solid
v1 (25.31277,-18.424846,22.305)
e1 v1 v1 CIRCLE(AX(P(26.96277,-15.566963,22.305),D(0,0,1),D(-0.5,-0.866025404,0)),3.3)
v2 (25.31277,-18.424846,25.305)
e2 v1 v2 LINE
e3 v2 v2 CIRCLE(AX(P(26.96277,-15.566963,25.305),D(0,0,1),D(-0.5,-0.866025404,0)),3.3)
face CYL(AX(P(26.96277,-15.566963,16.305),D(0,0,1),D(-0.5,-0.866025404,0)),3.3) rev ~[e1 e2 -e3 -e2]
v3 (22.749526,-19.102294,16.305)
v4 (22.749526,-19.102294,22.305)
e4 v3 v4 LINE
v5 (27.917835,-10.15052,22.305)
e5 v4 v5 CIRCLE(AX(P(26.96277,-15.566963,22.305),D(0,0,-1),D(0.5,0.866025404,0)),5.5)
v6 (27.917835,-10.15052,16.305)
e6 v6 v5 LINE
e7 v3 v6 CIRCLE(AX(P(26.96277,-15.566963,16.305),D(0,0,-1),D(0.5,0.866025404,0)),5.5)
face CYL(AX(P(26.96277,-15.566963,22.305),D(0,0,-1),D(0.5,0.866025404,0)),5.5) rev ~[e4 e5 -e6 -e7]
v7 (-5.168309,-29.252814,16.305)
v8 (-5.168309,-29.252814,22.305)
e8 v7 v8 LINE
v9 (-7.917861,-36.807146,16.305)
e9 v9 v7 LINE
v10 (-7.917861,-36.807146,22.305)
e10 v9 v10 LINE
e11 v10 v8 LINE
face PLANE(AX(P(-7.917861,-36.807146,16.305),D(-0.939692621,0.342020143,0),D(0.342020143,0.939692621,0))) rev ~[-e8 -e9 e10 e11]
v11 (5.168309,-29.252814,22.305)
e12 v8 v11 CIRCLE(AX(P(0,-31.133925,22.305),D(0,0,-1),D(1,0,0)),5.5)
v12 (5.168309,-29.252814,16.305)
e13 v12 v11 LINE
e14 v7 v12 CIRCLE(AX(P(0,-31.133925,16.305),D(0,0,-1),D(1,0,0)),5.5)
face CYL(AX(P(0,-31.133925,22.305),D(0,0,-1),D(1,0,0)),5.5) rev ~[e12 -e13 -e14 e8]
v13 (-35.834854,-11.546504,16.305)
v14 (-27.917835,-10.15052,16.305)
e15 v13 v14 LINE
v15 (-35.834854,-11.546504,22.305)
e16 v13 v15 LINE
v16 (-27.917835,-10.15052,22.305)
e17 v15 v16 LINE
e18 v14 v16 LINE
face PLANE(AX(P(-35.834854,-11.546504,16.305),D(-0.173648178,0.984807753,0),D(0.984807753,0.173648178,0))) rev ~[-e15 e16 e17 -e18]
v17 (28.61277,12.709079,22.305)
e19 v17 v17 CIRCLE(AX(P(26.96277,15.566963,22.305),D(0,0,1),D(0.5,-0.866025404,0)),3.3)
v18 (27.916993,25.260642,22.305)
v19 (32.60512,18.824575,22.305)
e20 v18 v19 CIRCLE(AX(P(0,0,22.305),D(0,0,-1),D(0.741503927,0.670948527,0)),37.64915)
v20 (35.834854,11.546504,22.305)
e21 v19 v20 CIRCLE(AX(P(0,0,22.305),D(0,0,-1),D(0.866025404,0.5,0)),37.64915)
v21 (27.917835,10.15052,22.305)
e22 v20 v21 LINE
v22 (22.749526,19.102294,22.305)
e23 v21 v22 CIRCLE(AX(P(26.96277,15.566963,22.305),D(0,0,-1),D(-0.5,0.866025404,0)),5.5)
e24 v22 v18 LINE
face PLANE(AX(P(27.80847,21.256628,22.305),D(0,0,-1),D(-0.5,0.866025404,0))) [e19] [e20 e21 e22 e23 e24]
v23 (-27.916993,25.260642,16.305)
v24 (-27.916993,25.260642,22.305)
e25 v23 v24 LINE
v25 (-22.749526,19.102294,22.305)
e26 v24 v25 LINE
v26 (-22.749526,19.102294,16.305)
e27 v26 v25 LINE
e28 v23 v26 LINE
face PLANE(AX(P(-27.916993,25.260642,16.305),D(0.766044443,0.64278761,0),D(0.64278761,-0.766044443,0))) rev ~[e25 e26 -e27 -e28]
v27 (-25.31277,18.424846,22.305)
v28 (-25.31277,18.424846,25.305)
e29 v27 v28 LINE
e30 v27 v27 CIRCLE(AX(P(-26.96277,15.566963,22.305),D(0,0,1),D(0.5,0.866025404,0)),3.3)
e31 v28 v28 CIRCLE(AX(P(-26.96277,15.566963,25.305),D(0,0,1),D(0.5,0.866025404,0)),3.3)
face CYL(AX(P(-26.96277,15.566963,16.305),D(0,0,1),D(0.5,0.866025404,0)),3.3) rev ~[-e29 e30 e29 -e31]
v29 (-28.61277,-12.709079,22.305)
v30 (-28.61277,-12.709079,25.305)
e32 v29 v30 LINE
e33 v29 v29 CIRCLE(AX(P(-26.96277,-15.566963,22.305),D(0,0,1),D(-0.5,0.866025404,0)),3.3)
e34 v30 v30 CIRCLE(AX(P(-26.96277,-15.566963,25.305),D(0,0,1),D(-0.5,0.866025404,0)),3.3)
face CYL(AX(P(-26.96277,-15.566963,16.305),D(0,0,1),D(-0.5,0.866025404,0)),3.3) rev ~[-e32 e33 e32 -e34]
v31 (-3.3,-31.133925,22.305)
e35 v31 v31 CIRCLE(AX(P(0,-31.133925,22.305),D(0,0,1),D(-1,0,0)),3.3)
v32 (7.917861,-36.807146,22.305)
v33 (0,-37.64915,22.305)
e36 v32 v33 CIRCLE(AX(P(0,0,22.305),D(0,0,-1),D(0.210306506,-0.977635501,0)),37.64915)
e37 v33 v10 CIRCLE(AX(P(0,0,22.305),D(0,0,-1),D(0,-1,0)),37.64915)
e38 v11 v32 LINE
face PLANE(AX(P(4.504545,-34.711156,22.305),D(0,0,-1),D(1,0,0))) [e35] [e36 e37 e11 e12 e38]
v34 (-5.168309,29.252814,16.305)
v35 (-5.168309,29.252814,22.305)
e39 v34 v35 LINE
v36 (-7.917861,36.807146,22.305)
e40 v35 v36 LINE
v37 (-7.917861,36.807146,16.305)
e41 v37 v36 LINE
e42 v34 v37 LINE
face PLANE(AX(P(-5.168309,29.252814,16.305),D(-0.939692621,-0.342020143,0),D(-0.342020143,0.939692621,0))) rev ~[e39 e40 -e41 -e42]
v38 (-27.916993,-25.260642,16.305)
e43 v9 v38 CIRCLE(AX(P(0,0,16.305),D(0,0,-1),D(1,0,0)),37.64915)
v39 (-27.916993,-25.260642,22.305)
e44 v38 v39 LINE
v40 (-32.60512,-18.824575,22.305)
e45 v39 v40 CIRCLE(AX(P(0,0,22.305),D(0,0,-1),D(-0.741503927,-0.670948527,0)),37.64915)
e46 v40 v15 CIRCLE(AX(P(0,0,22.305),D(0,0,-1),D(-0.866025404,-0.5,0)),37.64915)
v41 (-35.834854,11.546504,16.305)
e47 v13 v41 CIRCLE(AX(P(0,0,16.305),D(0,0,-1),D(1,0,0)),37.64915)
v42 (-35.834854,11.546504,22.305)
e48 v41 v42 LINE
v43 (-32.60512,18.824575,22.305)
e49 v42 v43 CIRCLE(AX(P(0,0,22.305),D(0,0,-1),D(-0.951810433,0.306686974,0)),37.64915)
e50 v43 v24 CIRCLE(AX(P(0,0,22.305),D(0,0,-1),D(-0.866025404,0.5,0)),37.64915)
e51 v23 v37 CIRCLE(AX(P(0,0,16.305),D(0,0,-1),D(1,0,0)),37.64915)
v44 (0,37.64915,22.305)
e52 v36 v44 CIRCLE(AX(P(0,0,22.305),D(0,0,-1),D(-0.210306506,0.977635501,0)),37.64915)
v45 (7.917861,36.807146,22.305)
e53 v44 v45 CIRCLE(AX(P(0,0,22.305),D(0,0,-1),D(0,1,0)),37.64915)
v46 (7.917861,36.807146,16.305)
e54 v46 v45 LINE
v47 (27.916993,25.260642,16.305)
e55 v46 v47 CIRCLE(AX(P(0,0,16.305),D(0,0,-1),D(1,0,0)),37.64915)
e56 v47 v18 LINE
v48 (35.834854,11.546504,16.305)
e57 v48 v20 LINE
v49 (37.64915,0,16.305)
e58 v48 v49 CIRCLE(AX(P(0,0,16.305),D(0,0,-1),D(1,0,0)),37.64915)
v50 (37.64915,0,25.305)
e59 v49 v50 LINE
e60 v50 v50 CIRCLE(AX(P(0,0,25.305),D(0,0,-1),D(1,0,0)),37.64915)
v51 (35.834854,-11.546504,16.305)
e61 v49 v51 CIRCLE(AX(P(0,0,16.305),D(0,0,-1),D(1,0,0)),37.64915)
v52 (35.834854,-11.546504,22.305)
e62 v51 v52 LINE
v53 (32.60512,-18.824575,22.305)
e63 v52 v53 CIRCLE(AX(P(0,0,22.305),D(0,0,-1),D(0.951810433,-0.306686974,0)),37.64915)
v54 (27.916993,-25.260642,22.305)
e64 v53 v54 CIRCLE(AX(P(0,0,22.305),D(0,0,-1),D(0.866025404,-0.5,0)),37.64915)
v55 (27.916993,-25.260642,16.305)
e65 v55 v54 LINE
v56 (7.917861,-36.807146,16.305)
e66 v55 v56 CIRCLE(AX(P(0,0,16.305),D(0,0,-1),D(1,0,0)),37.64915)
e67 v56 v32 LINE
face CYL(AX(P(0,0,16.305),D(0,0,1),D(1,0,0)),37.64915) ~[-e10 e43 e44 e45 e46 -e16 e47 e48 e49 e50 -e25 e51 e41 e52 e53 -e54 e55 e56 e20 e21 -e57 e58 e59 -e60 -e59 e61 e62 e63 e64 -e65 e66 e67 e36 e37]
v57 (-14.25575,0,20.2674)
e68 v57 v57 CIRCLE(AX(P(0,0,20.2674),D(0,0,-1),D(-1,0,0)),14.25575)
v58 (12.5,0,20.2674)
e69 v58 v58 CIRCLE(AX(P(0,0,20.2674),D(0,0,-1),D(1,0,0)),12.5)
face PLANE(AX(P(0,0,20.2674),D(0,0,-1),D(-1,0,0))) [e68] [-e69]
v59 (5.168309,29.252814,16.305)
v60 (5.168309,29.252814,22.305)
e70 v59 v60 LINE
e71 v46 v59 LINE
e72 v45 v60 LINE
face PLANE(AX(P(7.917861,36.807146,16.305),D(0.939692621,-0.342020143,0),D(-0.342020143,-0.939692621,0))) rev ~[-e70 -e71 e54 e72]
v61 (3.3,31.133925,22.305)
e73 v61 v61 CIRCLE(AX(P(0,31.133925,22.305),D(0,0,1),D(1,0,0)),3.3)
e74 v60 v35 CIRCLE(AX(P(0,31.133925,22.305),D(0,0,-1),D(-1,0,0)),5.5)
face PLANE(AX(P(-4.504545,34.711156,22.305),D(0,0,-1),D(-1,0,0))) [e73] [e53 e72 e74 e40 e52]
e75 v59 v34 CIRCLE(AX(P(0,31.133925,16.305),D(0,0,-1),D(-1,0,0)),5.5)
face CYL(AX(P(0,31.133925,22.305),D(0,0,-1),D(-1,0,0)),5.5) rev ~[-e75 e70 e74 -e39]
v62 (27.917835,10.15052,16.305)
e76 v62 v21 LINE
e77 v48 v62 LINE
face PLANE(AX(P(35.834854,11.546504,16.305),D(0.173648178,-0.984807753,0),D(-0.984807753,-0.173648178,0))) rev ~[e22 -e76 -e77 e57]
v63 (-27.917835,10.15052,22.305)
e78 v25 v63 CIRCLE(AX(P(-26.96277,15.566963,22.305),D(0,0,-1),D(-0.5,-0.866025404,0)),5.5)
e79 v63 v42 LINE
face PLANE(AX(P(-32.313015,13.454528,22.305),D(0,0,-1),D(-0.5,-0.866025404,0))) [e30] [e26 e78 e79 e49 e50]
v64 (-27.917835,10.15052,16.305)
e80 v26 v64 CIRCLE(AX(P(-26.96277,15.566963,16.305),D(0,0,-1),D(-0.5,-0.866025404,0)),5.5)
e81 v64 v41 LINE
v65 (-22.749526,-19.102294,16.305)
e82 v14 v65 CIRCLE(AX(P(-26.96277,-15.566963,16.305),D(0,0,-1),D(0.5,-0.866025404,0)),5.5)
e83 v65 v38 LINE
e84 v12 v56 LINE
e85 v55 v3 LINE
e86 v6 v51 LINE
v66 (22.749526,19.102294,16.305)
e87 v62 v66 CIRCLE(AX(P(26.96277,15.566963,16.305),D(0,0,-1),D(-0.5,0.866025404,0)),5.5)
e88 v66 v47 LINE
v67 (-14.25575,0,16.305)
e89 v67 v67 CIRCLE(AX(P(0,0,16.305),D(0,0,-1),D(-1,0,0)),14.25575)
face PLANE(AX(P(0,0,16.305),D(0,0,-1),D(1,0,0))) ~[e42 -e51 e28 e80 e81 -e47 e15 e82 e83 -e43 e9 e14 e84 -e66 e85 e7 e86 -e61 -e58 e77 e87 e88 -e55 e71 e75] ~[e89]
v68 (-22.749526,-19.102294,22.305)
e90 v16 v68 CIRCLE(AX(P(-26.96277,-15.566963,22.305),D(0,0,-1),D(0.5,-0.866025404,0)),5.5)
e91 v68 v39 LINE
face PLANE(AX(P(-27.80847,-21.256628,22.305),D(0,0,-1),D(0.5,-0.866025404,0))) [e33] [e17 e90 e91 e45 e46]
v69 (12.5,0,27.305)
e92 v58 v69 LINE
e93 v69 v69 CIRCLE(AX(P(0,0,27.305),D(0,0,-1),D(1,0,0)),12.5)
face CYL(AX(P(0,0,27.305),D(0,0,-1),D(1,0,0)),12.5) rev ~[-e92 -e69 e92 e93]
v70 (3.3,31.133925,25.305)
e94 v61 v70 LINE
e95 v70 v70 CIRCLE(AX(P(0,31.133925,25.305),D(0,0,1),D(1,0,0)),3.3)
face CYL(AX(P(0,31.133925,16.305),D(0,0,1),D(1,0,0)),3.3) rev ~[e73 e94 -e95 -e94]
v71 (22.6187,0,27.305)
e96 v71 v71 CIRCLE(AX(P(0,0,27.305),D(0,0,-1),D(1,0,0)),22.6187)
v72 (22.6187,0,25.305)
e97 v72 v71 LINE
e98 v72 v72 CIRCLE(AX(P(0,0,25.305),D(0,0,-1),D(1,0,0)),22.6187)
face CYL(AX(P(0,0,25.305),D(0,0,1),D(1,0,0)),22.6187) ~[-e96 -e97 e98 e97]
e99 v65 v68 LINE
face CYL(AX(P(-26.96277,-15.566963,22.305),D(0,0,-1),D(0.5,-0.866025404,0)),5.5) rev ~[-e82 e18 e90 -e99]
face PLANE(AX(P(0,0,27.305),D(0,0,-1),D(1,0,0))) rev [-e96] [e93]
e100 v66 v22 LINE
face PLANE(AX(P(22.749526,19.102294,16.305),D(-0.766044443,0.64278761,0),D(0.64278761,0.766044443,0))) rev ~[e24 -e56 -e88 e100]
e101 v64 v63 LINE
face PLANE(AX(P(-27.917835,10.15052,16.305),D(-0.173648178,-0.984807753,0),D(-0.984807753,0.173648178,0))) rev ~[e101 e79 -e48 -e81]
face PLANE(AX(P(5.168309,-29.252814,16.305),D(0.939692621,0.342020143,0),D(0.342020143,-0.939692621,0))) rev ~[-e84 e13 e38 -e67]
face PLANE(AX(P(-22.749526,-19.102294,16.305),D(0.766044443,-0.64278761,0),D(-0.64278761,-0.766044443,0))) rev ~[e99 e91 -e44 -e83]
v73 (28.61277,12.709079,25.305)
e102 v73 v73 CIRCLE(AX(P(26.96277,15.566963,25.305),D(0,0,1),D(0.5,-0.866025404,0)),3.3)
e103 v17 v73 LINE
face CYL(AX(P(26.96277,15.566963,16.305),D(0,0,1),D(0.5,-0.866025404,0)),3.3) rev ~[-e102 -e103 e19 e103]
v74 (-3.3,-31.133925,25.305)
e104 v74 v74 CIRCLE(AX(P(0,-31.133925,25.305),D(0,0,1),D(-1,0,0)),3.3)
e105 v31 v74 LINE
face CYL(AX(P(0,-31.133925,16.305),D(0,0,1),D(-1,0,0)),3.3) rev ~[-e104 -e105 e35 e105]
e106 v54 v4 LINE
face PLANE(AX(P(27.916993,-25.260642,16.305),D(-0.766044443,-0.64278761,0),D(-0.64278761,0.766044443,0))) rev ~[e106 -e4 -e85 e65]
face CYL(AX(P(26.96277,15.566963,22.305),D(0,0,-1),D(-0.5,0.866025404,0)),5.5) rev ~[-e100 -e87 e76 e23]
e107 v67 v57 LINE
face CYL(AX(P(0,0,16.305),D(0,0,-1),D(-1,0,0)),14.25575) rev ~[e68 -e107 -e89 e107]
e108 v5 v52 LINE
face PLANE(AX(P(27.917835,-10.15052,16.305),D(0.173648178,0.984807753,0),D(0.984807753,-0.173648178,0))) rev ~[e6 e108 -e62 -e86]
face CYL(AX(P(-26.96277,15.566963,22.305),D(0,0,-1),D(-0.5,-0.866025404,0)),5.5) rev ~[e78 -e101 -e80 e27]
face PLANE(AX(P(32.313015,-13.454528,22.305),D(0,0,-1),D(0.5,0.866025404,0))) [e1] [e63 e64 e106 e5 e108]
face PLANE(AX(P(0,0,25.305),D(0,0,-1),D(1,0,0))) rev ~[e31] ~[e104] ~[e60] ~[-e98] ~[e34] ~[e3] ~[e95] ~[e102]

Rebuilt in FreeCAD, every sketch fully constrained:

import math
import FreeCAD as App
import Part
import Sketcher
Q = App.Units.Quantity

doc = App.newDocument("Part")
body = doc.addObject("PartDesign::Body", "Body")

# Sketch on YZ plane
sketch1 = doc.addObject("Sketcher::SketchObject", "Sketch")
body.addObject(sketch1)
sketch1.AttachmentSupport = (doc.YZ_Plane, [""])
sketch1.MapMode = "FlatFace"
sketch1.addGeometry([
    Part.LineSegment(App.Vector(12.5, 25.3, 0), App.Vector(9.5, 25.3, 0)),  # 0
    Part.LineSegment(App.Vector(9.5, 25.3, 0), App.Vector(9.5, 16.3, 0)),  # 1
    Part.LineSegment(App.Vector(9.5, 16.3, 0), App.Vector(37.6, 16.3, 0)),  # 2
    Part.LineSegment(App.Vector(37.6, 16.3, 0), App.Vector(37.6, 25.3, 0)),  # 3
    Part.LineSegment(App.Vector(37.6, 25.3, 0), App.Vector(22.6, 25.3, 0)),  # 4
    Part.LineSegment(App.Vector(22.6, 25.3, 0), App.Vector(22.6, 27.3, 0)),  # 5
    Part.LineSegment(App.Vector(22.6, 27.3, 0), App.Vector(12.5, 27.3, 0)),  # 6
    Part.LineSegment(App.Vector(12.5, 27.3, 0), App.Vector(12.5, 25.3, 0)),  # 7
], False)
sketch1.addConstraint([
    Sketcher.Constraint("Coincident", 0, 2, 1, 1),
    Sketcher.Constraint("Coincident", 1, 2, 2, 1),
    Sketcher.Constraint("Coincident", 2, 2, 3, 1),
    Sketcher.Constraint("Coincident", 3, 2, 4, 1),
    Sketcher.Constraint("Coincident", 4, 2, 5, 1),
    Sketcher.Constraint("Coincident", 5, 2, 6, 1),
    Sketcher.Constraint("Coincident", 6, 2, 7, 1),
    Sketcher.Constraint("Coincident", 7, 2, 0, 1),
    Sketcher.Constraint("Horizontal", 0),
    Sketcher.Constraint("Vertical", 1),
    Sketcher.Constraint("Horizontal", 2),
    Sketcher.Constraint("Vertical", 3),
    Sketcher.Constraint("Horizontal", 4),
    Sketcher.Constraint("Vertical", 5),
    Sketcher.Constraint("Horizontal", 6),
    Sketcher.Constraint("Vertical", 7),
    Sketcher.Constraint("Horizontal", 0, 2, 3, 2),
    Sketcher.Constraint("DistanceY", 1, 2, 1, 1, 9.0),
    Sketcher.Constraint("DistanceY", 5, 1, 5, 2, 2.0),
    Sketcher.Constraint("DistanceX", -1, 1, 6, 2, 12.5),
    Sketcher.Constraint("DistanceX", 0, 2, 0, 1, 2.975),
    Sketcher.Constraint("DistanceX", 6, 2, 6, 1, 10.1187),
    Sketcher.Constraint("DistanceY", -1, 1, 0, 2, 25.305),
    Sketcher.Constraint("DistanceX", 2, 1, 2, 2, 28.12415),
])
revolution = doc.addObject("PartDesign::Revolution", "Revolution")
body.addObject(revolution)
revolution.Profile = sketch1
revolution.ReferenceAxis = (sketch1, ["V_Axis"])
revolution.Angle = 360

# Sketch on XY plane
sketch2 = doc.addObject("Sketcher::SketchObject", "Sketch001")
body.addObject(sketch2)
sketch2.AttachmentSupport = (doc.XY_Plane, [""])
sketch2.MapMode = "FlatFace"
sketch2.AttachmentOffset = App.Placement(App.Vector(0, 0, 25.305), App.Rotation())
sketch2.addGeometry(Part.Circle(App.Vector(0, 0, 0), App.Vector(0, 0, 1), 12), False)
sketch2.addConstraint([
    Sketcher.Constraint("Coincident", 0, 3, -1, 1),
    Sketcher.Constraint("Diameter", 0, 25.0),
])
pocket1 = doc.addObject("PartDesign::Pocket", "Pocket")
body.addObject(pocket1)
pocket1.Profile = sketch2
pocket1.Type = "ThroughAll"
pocket1.Midplane = True

# Sketch on XY plane
sketch3 = doc.addObject("Sketcher::SketchObject", "Sketch002")
body.addObject(sketch3)
sketch3.AttachmentSupport = (doc.XY_Plane, [""])
sketch3.MapMode = "FlatFace"
sketch3.AttachmentOffset = App.Placement(App.Vector(0, 0, 16.305), App.Rotation())
sketch3.addGeometry(Part.Circle(App.Vector(0, 31.1, 0), App.Vector(0, 0, 1), 3.3), False)
sketch3.addConstraint([
    Sketcher.Constraint("PointOnObject", 0, 3, -2),
    Sketcher.Constraint("Diameter", 0, 6.6),
    Sketcher.Constraint("DistanceY", -1, 1, 0, 3, 31.133925),
])
doc.recompute()
hole = doc.addObject("PartDesign::Hole", "Hole")
body.addObject(hole)
hole.Profile = sketch3
hole.ThreadType = "None"
hole.Diameter = 6.6
hole.DepthType = "ThroughAll"
hole.HoleCutType = "Counterbore"
hole.HoleCutDiameter = 11
hole.HoleCutDepth = 6
hole.Reversed = True
doc.recompute()

polarpattern = doc.addObject("PartDesign::PolarPattern", "PolarPattern")
body.addObject(polarpattern)
polarpattern.Originals = [hole]
polarpattern.Axis = (doc.Z_Axis, [""])
polarpattern.Angle = 360
polarpattern.Occurrences = 6
body.Tip = polarpattern

# Sketch on XY plane
sketch4 = doc.addObject("Sketcher::SketchObject", "Sketch003")
body.addObject(sketch4)
sketch4.AttachmentSupport = (doc.XY_Plane, [""])
sketch4.MapMode = "FlatFace"
sketch4.AttachmentOffset = App.Placement(App.Vector(0, 0, 16.305), App.Rotation())
sketch4.addGeometry(Part.Circle(App.Vector(0, 0, 0), App.Vector(0, 0, 1), 14), False)
sketch4.addConstraint([
    Sketcher.Constraint("Coincident", 0, 3, -1, 1),
    Sketcher.Constraint("Diameter", 0, 28.5115),
])
pocket2 = doc.addObject("PartDesign::Pocket", "Pocket001")
body.addObject(pocket2)
pocket2.Profile = sketch4
pocket2.Length = 3.9624
pocket2.Reversed = True

# Sketch on XY plane
sketch5 = doc.addObject("Sketcher::SketchObject", "Sketch004")
body.addObject(sketch5)
sketch5.AttachmentSupport = (doc.XY_Plane, [""])
sketch5.MapMode = "FlatFace"
sketch5.AttachmentOffset = App.Placement(App.Vector(0, 0, 16.305), App.Rotation())
sketch5.addGeometry([
    Part.ArcOfCircle(Part.Circle(App.Vector(0, 31.1, 0), App.Vector(0, 0, 1), 5.5), math.radians(180), math.radians(200)),  # 0
    Part.LineSegment(App.Vector(-5.2, 29.3, 0), App.Vector(-7.9, 36.8, 0)),  # 1
    Part.ArcOfCircle(Part.Circle(App.Vector(0, 0, 0), App.Vector(0, 0, 1), 37.6), math.radians(90), math.radians(102.14)),  # 2
    Part.ArcOfCircle(Part.Circle(App.Vector(0, 0, 0), App.Vector(0, 0, 1), 37.6), math.radians(77.86), math.radians(90)),  # 3
    Part.LineSegment(App.Vector(7.9, 36.8, 0), App.Vector(5.2, 29.3, 0)),  # 4
    Part.ArcOfCircle(Part.Circle(App.Vector(0, 31.1, 0), App.Vector(0, 0, 1), 5.5), math.radians(-20), math.radians(90)),  # 5
    Part.ArcOfCircle(Part.Circle(App.Vector(0, 31.1, 0), App.Vector(0, 0, 1), 5.5), math.radians(90), math.radians(180)),  # 6
], False)
sketch5.addConstraint([
    Sketcher.Constraint("Tangent", 0, 2, 1, 1),
    Sketcher.Constraint("Coincident", 1, 2, 2, 2),
    Sketcher.Constraint("Tangent", 2, 1, 3, 2),
    Sketcher.Constraint("Coincident", 3, 1, 4, 1),
    Sketcher.Constraint("Tangent", 4, 2, 5, 1),
    Sketcher.Constraint("Tangent", 5, 2, 6, 1),
    Sketcher.Constraint("Tangent", 6, 2, 0, 1),
    Sketcher.Constraint("Coincident", 2, 3, -1, 1),
    Sketcher.Constraint("Coincident", 5, 3, 0, 3),
    Sketcher.Constraint("Equal", 2, 3),
    Sketcher.Constraint("Symmetric", 0, 2, 4, 2, -2),
    Sketcher.Constraint("PointOnObject", 2, 1, -2),
    Sketcher.Constraint("PointOnObject", 5, 2, -2),
    Sketcher.Constraint("Horizontal", 5, 3, 6, 2),
    Sketcher.Constraint("Radius", 0, 5.5),
    Sketcher.Constraint("Angle", 1, Q("110 deg")),
    Sketcher.Constraint("Radius", 2, 37.64915),
    Sketcher.Constraint("Distance", 1, 8.039152),
])
pocket3 = doc.addObject("PartDesign::Pocket", "Pocket002")
body.addObject(pocket3)
pocket3.Profile = sketch5
pocket3.Length = 6
pocket3.Reversed = True
doc.recompute()

polarpattern2 = doc.addObject("PartDesign::PolarPattern", "PolarPattern001")
body.addObject(polarpattern2)
polarpattern2.Originals = [pocket3]
polarpattern2.Axis = (doc.Z_Axis, [""])
polarpattern2.Angle = 360
polarpattern2.Occurrences = 6
body.Tip = polarpattern2

doc.recompute()
